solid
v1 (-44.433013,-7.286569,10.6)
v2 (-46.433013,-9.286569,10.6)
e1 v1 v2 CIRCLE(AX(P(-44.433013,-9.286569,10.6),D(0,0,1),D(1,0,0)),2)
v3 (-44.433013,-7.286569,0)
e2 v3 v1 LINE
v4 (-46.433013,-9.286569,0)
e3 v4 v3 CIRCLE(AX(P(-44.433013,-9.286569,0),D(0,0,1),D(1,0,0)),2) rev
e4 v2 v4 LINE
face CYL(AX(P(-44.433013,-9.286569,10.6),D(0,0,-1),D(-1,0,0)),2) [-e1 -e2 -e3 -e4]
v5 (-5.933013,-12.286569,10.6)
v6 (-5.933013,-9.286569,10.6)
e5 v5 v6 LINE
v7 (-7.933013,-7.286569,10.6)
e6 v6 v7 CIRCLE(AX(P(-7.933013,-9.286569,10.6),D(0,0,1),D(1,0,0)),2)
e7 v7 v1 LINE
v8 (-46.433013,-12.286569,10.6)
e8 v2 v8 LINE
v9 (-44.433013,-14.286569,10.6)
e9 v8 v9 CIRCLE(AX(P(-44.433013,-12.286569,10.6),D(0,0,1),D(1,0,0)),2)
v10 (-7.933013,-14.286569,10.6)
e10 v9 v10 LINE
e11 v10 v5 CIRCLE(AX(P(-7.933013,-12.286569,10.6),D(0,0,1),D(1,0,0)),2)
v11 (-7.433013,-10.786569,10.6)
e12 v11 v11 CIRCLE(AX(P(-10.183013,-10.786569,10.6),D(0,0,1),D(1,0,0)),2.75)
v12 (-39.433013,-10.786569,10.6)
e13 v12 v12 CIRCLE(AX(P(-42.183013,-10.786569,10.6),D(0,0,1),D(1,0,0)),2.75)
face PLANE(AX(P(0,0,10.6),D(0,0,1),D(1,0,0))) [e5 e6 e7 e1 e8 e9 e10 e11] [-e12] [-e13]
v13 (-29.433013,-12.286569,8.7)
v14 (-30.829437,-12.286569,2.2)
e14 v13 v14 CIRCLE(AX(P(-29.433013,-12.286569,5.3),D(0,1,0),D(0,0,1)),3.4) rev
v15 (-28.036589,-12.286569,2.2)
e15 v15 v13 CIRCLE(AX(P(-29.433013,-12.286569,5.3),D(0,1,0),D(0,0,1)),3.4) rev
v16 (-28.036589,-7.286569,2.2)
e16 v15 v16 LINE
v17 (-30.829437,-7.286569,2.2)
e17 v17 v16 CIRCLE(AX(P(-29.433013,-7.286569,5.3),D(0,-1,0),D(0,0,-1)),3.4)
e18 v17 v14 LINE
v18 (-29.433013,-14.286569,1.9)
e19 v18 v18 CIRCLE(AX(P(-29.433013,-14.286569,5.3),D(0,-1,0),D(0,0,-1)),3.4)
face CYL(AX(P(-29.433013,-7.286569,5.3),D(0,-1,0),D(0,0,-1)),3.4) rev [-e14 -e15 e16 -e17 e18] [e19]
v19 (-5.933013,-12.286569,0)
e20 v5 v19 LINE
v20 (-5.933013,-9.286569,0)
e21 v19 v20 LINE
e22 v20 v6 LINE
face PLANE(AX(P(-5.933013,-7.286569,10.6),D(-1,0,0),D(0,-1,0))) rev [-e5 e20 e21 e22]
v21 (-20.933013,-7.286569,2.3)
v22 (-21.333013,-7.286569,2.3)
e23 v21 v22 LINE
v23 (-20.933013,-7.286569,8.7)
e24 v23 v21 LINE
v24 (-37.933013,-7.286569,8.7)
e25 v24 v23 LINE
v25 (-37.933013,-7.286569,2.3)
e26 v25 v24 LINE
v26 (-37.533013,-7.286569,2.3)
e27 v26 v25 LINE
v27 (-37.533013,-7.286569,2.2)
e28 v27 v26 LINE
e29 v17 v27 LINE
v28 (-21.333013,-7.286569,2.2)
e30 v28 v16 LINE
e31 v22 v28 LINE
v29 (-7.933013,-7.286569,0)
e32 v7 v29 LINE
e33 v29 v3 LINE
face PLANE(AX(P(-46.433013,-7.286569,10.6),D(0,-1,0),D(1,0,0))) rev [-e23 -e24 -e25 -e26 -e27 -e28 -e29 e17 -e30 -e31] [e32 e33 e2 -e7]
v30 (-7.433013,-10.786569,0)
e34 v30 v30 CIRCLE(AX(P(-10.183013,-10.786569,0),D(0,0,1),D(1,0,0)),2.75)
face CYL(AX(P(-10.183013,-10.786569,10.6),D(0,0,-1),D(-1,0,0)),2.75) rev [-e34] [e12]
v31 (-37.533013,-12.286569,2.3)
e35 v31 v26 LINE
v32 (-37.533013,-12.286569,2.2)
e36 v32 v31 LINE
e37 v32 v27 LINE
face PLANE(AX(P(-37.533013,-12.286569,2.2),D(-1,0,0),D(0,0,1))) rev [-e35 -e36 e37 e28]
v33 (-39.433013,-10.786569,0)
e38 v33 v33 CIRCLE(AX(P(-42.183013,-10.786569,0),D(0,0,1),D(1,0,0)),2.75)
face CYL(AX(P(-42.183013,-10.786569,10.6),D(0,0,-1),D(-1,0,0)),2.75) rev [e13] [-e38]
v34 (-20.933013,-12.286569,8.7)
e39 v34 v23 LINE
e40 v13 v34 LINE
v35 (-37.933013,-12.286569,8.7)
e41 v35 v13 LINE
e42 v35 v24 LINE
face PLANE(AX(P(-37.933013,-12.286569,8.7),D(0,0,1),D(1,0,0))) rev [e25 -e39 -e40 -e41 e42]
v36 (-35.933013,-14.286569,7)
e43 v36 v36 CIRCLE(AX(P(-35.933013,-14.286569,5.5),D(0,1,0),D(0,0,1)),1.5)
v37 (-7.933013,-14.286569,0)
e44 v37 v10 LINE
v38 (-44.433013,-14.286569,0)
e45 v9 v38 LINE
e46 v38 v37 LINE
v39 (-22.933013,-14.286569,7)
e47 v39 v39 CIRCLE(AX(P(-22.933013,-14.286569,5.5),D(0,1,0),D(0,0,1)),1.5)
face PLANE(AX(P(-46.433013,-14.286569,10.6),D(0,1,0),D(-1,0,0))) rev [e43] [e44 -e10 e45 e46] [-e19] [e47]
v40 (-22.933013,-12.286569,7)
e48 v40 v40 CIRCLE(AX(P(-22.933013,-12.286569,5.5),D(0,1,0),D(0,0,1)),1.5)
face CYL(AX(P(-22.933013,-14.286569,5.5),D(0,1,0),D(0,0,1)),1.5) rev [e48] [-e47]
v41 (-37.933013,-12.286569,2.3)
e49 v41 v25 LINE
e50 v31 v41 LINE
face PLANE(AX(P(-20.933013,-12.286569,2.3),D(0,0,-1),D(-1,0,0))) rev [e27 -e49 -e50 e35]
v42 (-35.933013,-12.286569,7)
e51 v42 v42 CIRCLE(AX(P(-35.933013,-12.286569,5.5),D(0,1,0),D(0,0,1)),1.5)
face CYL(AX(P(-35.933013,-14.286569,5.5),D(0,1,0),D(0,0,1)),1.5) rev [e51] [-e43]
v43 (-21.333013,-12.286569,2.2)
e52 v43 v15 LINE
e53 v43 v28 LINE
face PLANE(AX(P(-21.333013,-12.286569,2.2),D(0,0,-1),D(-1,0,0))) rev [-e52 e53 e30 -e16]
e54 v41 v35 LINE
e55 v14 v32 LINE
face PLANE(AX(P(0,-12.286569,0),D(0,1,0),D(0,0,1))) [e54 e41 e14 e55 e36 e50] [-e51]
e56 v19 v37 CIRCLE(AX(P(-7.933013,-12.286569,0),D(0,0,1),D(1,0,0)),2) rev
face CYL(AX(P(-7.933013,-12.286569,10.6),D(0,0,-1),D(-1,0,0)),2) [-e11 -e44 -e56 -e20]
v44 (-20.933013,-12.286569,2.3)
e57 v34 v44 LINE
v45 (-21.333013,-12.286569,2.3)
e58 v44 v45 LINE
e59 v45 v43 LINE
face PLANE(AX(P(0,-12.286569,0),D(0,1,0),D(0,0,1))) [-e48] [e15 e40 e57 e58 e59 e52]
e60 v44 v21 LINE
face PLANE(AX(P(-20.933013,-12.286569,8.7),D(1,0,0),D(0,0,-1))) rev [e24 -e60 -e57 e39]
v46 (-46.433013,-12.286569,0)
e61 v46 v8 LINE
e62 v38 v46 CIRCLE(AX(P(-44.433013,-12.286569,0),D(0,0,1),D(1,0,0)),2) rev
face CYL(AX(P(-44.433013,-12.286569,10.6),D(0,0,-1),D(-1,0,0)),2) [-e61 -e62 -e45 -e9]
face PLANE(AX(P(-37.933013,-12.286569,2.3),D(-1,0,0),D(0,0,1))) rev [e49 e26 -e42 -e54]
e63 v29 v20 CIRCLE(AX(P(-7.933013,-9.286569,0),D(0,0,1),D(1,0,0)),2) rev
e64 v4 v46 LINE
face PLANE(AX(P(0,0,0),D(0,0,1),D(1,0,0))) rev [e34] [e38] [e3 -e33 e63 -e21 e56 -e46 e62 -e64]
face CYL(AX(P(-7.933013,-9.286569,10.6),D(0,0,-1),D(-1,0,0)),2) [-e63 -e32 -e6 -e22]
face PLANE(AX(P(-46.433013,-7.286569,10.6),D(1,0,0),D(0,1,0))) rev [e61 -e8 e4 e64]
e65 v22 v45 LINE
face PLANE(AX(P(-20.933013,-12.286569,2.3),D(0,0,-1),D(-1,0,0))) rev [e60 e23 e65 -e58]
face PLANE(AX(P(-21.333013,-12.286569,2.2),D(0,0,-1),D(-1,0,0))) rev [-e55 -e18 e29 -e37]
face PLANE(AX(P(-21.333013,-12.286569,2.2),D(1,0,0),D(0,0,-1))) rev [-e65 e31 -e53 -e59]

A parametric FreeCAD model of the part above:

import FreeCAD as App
import Part
import Sketcher
Q = App.Units.Quantity


def edges_at(feature, points):
    """Names of the edges that pass closest to the given points."""
    edges = feature.Shape.Edges
    near = lambda p: min(range(len(edges)), key=lambda i: edges[i].distToShape(Part.Vertex(*p))[0])
    return sorted({f"Edge{near(p) + 1}" for p in points})


def add_polygon(sketch, points):
    """Adds a closed chain of lines whose ends are joined by coincident constraints."""
    first, n = sketch.GeometryCount, len(points)
    for a, b in zip(points, points[1:] + points[:1]):
        sketch.addGeometry(Part.LineSegment(App.Vector(*a, 0), App.Vector(*b, 0)), False)
    for i in range(n):
        sketch.addConstraint(Sketcher.Constraint("Coincident", first + i, 2, first + (i + 1) % n, 1))

doc = App.newDocument("Part")
body = doc.addObject("PartDesign::Body", "Body")

sketch1 = doc.addObject("Sketcher::SketchObject", "Sketch")
body.addObject(sketch1)
sketch1.AttachmentSupport = (doc.XY_Plane, [""])
sketch1.MapMode = "FlatFace"
add_polygon(sketch1, [(-46.4, -7.3), (-46.4, -14.3), (-5.9, -14.3), (-5.9, -7.3)])
sketch1.addGeometry(Part.Circle(App.Vector(-42.2, -10.8, 0), App.Vector(0, 0, 1), 2.8), False)
sketch1.addGeometry(Part.Circle(App.Vector(-10.2, -10.8, 0), App.Vector(0, 0, 1), 2.8), False)
sketch1.addConstraint([
    Sketcher.Constraint("Vertical", 0),
    Sketcher.Constraint("Horizontal", 1),
    Sketcher.Constraint("Vertical", 2),
    Sketcher.Constraint("Horizontal", 3),
    Sketcher.Constraint("Equal", 4, 5),
    Sketcher.Constraint("Horizontal", 4, 3, 5, 3),
    Sketcher.Constraint("Diameter", 4, Q("5.5 mm")),
    Sketcher.Constraint("DistanceY", 0, 2, 0, 1, Q("7 mm")),
    Sketcher.Constraint("DistanceX", 1, 1, 1, 2, Q("40.5 mm")),
    Sketcher.Constraint("DistanceX", 4, 3, 5, 3, Q("32 mm")),
    Sketcher.Constraint("DistanceY", 0, 2, 4, 3, Q("3.5 mm")),
    Sketcher.Constraint("DistanceX", 0, 2, 4, 3, Q("4.25 mm")),
    Sketcher.Constraint("DistanceY", 4, 3, -1, 1, Q("10.786569 mm")),
    Sketcher.Constraint("DistanceX", 4, 3, -1, 1, Q("42.183013 mm")),
])
pad1 = doc.addObject("PartDesign::Pad", "Pad")
body.addObject(pad1)
pad1.Profile = sketch1
pad1.Length = 10.6

sketch2 = doc.addObject("Sketcher::SketchObject", "Sketch001")
body.addObject(sketch2)
sketch2.AttachmentSupport = (doc.XZ_Plane, [""])
sketch2.MapMode = "FlatFace"
sketch2.AttachmentOffset = App.Placement(App.Vector(0, 0, 14.286569), App.Rotation())
sketch2.addGeometry(Part.Circle(App.Vector(-29.4, 5.3, 0), App.Vector(0, 0, 1), 3.4), False)
sketch2.addConstraint([
    Sketcher.Constraint("Diameter", 0, Q("6.8 mm")),
    Sketcher.Constraint("DistanceY", -1, 1, 0, 3, Q("5.3 mm")),
    Sketcher.Constraint("DistanceX", 0, 3, -1, 1, Q("29.433013 mm")),
])
pocket1 = doc.addObject("PartDesign::Pocket", "Pocket")
body.addObject(pocket1)
pocket1.Profile = sketch2
pocket1.Length = 7
doc.recompute()

fillet = doc.addObject("PartDesign::Fillet", "Fillet")
body.addObject(fillet)
fillet.Base = (pocket1, edges_at(pocket1, [
    (-46.433, -7.287, 5.3),
    (-5.933, -7.287, 5.3),
    (-5.933, -14.287, 5.3),
    (-46.433, -14.287, 5.3),
]))
fillet.Radius = 2

sketch3 = doc.addObject("Sketcher::SketchObject", "Sketch002")
body.addObject(sketch3)
sketch3.AttachmentSupport = (doc.XZ_Plane, [""])
sketch3.MapMode = "FlatFace"
sketch3.AttachmentOffset = App.Placement(App.Vector(0, 0, 7.286569), App.Rotation())
add_polygon(sketch3, [(-38, 2), (-38, 9), (-21, 9), (-21, 2)])
sketch3.addConstraint([
    Sketcher.Constraint("Vertical", 0),
    Sketcher.Constraint("Horizontal", 1),
    Sketcher.Constraint("Vertical", 2),
    Sketcher.Constraint("Horizontal", 3),
    Sketcher.Constraint("DistanceX", 1, 1, 1, 2, Q("17 mm")),
    Sketcher.Constraint("DistanceY", 0, 1, 0, 2, Q("6.4 mm")),
    Sketcher.Constraint("DistanceY", -1, 1, 0, 2, Q("8.7 mm")),
    Sketcher.Constraint("DistanceX", 0, 2, -1, 1, Q("37.933013 mm")),
])
pocket2 = doc.addObject("PartDesign::Pocket", "Pocket001")
body.addObject(pocket2)
pocket2.Profile = sketch3
pocket2.Length = 5
pocket2.Reversed = True

sketch4 = doc.addObject("Sketcher::SketchObject", "Sketch003")
body.addObject(sketch4)
sketch4.AttachmentSupport = (doc.XZ_Plane, [""])
sketch4.MapMode = "FlatFace"
sketch4.AttachmentOffset = App.Placement(App.Vector(0, 0, 12.286569), App.Rotation())
sketch4.addGeometry([
    Part.Circle(App.Vector(-22.9, 5.5, 0), App.Vector(0, 0, 1), 1.5),
    Part.Circle(App.Vector(-35.9, 5.5, 0), App.Vector(0, 0, 1), 1.5),
], False)
sketch4.addConstraint([
    Sketcher.Constraint("Equal", 0, 1),
    Sketcher.Constraint("Horizontal", 0, 3, 1, 3),
    Sketcher.Constraint("Diameter", 0, Q("3 mm")),
    Sketcher.Constraint("DistanceX", 1, 3, 0, 3, Q("13 mm")),
    Sketcher.Constraint("DistanceY", -1, 1, 0, 3, Q("5.5 mm")),
    Sketcher.Constraint("DistanceX", 0, 3, -1, 1, Q("22.933013 mm")),
])
pocket3 = doc.addObject("PartDesign::Pocket", "Pocket002")
body.addObject(pocket3)
pocket3.Profile = sketch4
pocket3.Length = 2
pocket3.Reversed = True

sketch5 = doc.addObject("Sketcher::SketchObject", "Sketch004")
body.addObject(sketch5)
sketch5.AttachmentSupport = (doc.XZ_Plane, [""])
sketch5.MapMode = "FlatFace"
sketch5.AttachmentOffset = App.Placement(App.Vector(0, 0, 7.286569), App.Rotation())
add_polygon(sketch5, [(-38, 2), (-38, 8), (-21, 8), (-21, 2)])
sketch5.addConstraint([
    Sketcher.Constraint("Vertical", 0),
    Sketcher.Constraint("Horizontal", 1),
    Sketcher.Constraint("Vertical", 2),
    Sketcher.Constraint("Horizontal", 3),
    Sketcher.Constraint("DistanceX", 1, 1, 1, 2, Q("16.2 mm")),
    Sketcher.Constraint("DistanceY", 0, 1, 0, 2, Q("6.2 mm")),
    Sketcher.Constraint("DistanceY", -1, 1, 0, 2, Q("8.4 mm")),
    Sketcher.Constraint("DistanceX", 0, 2, -1, 1, Q("37.533013 mm")),
])
pocket4 = doc.addObject("PartDesign::Pocket", "Pocket003")
body.addObject(pocket4)
pocket4.Profile = sketch5
pocket4.Length = 5
pocket4.Reversed = True

doc.recompute()
